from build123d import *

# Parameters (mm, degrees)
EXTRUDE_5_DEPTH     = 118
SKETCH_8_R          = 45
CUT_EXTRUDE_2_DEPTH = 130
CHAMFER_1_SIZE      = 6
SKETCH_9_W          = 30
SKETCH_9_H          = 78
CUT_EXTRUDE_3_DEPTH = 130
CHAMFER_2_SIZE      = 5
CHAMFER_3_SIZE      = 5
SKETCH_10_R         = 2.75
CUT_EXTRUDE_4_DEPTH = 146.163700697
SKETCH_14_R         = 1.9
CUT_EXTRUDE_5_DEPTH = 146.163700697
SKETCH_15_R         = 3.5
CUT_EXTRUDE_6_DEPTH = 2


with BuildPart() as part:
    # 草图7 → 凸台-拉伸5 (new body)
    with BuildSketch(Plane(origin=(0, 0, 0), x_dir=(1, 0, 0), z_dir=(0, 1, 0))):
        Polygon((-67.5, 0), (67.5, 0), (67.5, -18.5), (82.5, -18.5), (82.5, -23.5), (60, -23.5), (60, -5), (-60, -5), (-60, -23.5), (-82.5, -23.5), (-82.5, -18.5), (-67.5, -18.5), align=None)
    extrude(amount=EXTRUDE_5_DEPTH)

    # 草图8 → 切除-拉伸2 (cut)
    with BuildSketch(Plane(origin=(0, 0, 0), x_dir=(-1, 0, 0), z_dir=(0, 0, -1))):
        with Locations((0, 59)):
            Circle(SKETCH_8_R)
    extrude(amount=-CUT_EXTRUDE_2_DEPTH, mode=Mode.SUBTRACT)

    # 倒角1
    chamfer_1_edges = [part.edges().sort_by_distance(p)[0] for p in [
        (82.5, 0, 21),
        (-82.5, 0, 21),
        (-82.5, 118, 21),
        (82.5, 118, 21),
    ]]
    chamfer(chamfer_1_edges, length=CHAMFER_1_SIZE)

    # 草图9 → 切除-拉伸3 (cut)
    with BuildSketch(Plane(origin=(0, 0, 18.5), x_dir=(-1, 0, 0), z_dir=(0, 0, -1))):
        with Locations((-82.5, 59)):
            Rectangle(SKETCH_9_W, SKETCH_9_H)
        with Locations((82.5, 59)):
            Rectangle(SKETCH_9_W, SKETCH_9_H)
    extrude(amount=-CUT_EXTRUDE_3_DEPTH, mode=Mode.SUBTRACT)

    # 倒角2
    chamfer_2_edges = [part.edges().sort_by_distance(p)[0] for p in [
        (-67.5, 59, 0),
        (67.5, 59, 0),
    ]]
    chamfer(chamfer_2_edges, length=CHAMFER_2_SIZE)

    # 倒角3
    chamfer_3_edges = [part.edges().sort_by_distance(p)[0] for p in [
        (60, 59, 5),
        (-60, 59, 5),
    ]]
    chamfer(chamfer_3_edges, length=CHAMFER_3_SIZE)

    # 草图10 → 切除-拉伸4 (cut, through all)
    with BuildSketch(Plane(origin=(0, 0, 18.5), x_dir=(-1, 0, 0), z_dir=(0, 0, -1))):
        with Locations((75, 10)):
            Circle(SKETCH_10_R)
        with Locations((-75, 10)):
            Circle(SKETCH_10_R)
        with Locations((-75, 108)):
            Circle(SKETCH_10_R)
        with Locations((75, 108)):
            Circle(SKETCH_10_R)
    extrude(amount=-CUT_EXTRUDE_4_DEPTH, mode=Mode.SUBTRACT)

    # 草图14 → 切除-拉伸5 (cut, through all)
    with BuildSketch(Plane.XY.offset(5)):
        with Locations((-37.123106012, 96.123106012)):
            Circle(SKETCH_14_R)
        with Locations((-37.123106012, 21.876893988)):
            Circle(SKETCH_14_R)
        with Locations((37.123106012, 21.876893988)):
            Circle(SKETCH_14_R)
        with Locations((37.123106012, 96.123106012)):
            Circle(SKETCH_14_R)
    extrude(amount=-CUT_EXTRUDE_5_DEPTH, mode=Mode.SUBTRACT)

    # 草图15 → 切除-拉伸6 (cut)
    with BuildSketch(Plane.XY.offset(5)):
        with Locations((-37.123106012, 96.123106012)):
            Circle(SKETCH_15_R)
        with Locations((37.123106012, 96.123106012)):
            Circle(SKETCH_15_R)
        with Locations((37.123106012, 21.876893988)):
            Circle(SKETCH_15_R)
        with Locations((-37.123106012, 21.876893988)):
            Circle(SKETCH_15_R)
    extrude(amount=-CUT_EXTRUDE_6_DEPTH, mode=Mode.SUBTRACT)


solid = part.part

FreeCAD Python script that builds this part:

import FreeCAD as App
import Part
import Sketcher
from FreeCAD import Vector
Q = App.Units.Quantity


def edges_at(feature, points):
    """Names of the edges that pass closest to the given points."""
    edges = feature.Shape.Edges
    near = lambda p: min(range(len(edges)), key=lambda i: edges[i].distToShape(Part.Vertex(*p))[0])
    return sorted({f"Edge{near(p) + 1}" for p in points})

doc = App.newDocument("Part")
body = doc.addObject("PartDesign::Body", "Body")

sketch1 = body.newObject("Sketcher::SketchObject", "Sketch")
sketch1.AttachmentSupport = (doc.getObject("XZ_Plane"), [""])
sketch1.MapMode = "FlatFace"
sketch1.addGeometry(Part.LineSegment(Vector(68, 0, 0), Vector(-68, 0, 0)), False)
sketch1.addGeometry(Part.LineSegment(Vector(-68, 0, 0), Vector(-68, 18, 0)), False)
sketch1.addGeometry(Part.LineSegment(Vector(-68, 18, 0), Vector(-82, 18, 0)), False)
sketch1.addGeometry(Part.LineSegment(Vector(-82, 18, 0), Vector(-82, 24, 0)), False)
sketch1.addGeometry(Part.LineSegment(Vector(-82, 24, 0), Vector(-60, 24, 0)), False)
sketch1.addGeometry(Part.LineSegment(Vector(-60, 24, 0), Vector(-60, 5, 0)), False)
sketch1.addGeometry(Part.LineSegment(Vector(-60, 5, 0), Vector(60, 5, 0)), False)
sketch1.addGeometry(Part.LineSegment(Vector(60, 5, 0), Vector(60, 24, 0)), False)
sketch1.addGeometry(Part.LineSegment(Vector(60, 24, 0), Vector(82, 24, 0)), False)
sketch1.addGeometry(Part.LineSegment(Vector(82, 24, 0), Vector(82, 18, 0)), False)
sketch1.addGeometry(Part.LineSegment(Vector(82, 18, 0), Vector(68, 18, 0)), False)
sketch1.addGeometry(Part.LineSegment(Vector(68, 18, 0), Vector(68, 0, 0)), False)
sketch1.addConstraint(Sketcher.Constraint("Coincident", 0, 2, 1, 1))
sketch1.addConstraint(Sketcher.Constraint("Coincident", 1, 2, 2, 1))
sketch1.addConstraint(Sketcher.Constraint("Coincident", 2, 2, 3, 1))
sketch1.addConstraint(Sketcher.Constraint("Coincident", 3, 2, 4, 1))
sketch1.addConstraint(Sketcher.Constraint("Coincident", 4, 2, 5, 1))
sketch1.addConstraint(Sketcher.Constraint("Coincident", 5, 2, 6, 1))
sketch1.addConstraint(Sketcher.Constraint("Coincident", 6, 2, 7, 1))
sketch1.addConstraint(Sketcher.Constraint("Coincident", 7, 2, 8, 1))
sketch1.addConstraint(Sketcher.Constraint("Coincident", 8, 2, 9, 1))
sketch1.addConstraint(Sketcher.Constraint("Coincident", 9, 2, 10, 1))
sketch1.addConstraint(Sketcher.Constraint("Coincident", 10, 2, 11, 1))
sketch1.addConstraint(Sketcher.Constraint("Coincident", 11, 2, 0, 1))
sketch1.addConstraint(Sketcher.Constraint("Horizontal", 0))
sketch1.addConstraint(Sketcher.Constraint("Vertical", 1))
sketch1.addConstraint(Sketcher.Constraint("Horizontal", 2))
sketch1.addConstraint(Sketcher.Constraint("Vertical", 3))
sketch1.addConstraint(Sketcher.Constraint("Horizontal", 4))
sketch1.addConstraint(Sketcher.Constraint("Vertical", 5))
sketch1.addConstraint(Sketcher.Constraint("Horizontal", 6))
sketch1.addConstraint(Sketcher.Constraint("Vertical", 7))
sketch1.addConstraint(Sketcher.Constraint("Horizontal", 8))
sketch1.addConstraint(Sketcher.Constraint("Vertical", 9))
sketch1.addConstraint(Sketcher.Constraint("Horizontal", 10))
sketch1.addConstraint(Sketcher.Constraint("Vertical", 11))
sketch1.addConstraint(Sketcher.Constraint("Symmetric", 0, 2, 11, 2, -1, 1))
sketch1.addConstraint(Sketcher.Constraint("Symmetric", 4, 2, 7, 2, -2))
sketch1.addConstraint(Sketcher.Constraint("Symmetric", 2, 2, 9, 2, -2))
sketch1.addConstraint(Sketcher.Constraint("Equal", 1, 5))
sketch1.addConstraint(Sketcher.Constraint("DistanceX", 0, 2, 0, 1, Q("135 mm")))
sketch1.addConstraint(Sketcher.Constraint("DistanceX", 2, 2, 2, 1, Q("15 mm")))
sketch1.addConstraint(Sketcher.Constraint("DistanceX", 6, 1, 6, 2, Q("120 mm")))
sketch1.addConstraint(Sketcher.Constraint("DistanceY", 3, 1, 3, 2, Q("5 mm")))
sketch1.addConstraint(Sketcher.Constraint("DistanceY", 1, 1, 1, 2, Q("18.5 mm")))
pad1 = body.newObject("PartDesign::Pad", "Pad")
pad1.Profile = sketch1
pad1.Length = 118
pad1.Reversed = True

sketch2 = body.newObject("Sketcher::SketchObject", "Sketch001")
sketch2.AttachmentSupport = (doc.getObject("XY_Plane"), [""])
sketch2.MapMode = "FlatFace"
sketch2.addGeometry(Part.Circle(Vector(0, 59, 0), Vector(0, 0, 1), 45), False)
sketch2.addConstraint(Sketcher.Constraint("PointOnObject", 0, 3, -2))
sketch2.addConstraint(Sketcher.Constraint("Diameter", 0, Q("90 mm")))
sketch2.addConstraint(Sketcher.Constraint("DistanceY", -1, 1, 0, 3, Q("59 mm")))
pocket1 = body.newObject("PartDesign::Pocket", "Pocket")
pocket1.Profile = sketch2
pocket1.Length = 130
pocket1.Reversed = True
doc.recompute()

chamfer = body.newObject("PartDesign::Chamfer", "Chamfer")
chamfer.Base = (pocket1, edges_at(pocket1, [
    (82.5, 0, 21),
    (-82.5, 0, 21),
    (-82.5, 118, 21),
    (82.5, 118, 21),
]))
chamfer.Size = 6

sketch3 = body.newObject("Sketcher::SketchObject", "Sketch002")
sketch3.AttachmentSupport = (doc.getObject("XY_Plane"), [""])
sketch3.MapMode = "FlatFace"
sketch3.AttachmentOffset = App.Placement(Vector(0, 0, 18.5), App.Rotation())
sketch3.addGeometry(Part.LineSegment(Vector(98, 98, 0), Vector(98, 20, 0)), False)
sketch3.addGeometry(Part.LineSegment(Vector(98, 20, 0), Vector(68, 20, 0)), False)
sketch3.addGeometry(Part.LineSegment(Vector(68, 20, 0), Vector(68, 98, 0)), False)
sketch3.addGeometry(Part.LineSegment(Vector(68, 98, 0), Vector(98, 98, 0)), False)
sketch3.addGeometry(Part.LineSegment(Vector(-68, 98, 0), Vector(-68, 20, 0)), False)
sketch3.addGeometry(Part.LineSegment(Vector(-68, 20, 0), Vector(-98, 20, 0)), False)
sketch3.addGeometry(Part.LineSegment(Vector(-98, 20, 0), Vector(-98, 98, 0)), False)
sketch3.addGeometry(Part.LineSegment(Vector(-98, 98, 0), Vector(-68, 98, 0)), False)
sketch3.addConstraint(Sketcher.Constraint("Coincident", 0, 2, 1, 1))
sketch3.addConstraint(Sketcher.Constraint("Coincident", 1, 2, 2, 1))
sketch3.addConstraint(Sketcher.Constraint("Coincident", 2, 2, 3, 1))
sketch3.addConstraint(Sketcher.Constraint("Coincident", 3, 2, 0, 1))
sketch3.addConstraint(Sketcher.Constraint("Coincident", 4, 2, 5, 1))
sketch3.addConstraint(Sketcher.Constraint("Coincident", 5, 2, 6, 1))
sketch3.addConstraint(Sketcher.Constraint("Coincident", 6, 2, 7, 1))
sketch3.addConstraint(Sketcher.Constraint("Coincident", 7, 2, 4, 1))
sketch3.addConstraint(Sketcher.Constraint("Vertical", 0))
sketch3.addConstraint(Sketcher.Constraint("Horizontal", 1))
sketch3.addConstraint(Sketcher.Constraint("Vertical", 2))
sketch3.addConstraint(Sketcher.Constraint("Horizontal", 3))
sketch3.addConstraint(Sketcher.Constraint("Vertical", 4))
sketch3.addConstraint(Sketcher.Constraint("Horizontal", 5))
sketch3.addConstraint(Sketcher.Constraint("Vertical", 6))
sketch3.addConstraint(Sketcher.Constraint("Horizontal", 7))
sketch3.addConstraint(Sketcher.Constraint("Symmetric", 1, 2, 4, 2, -2))
sketch3.addConstraint(Sketcher.Constraint("Symmetric", 3, 2, 6, 2, -2))
sketch3.addConstraint(Sketcher.Constraint("DistanceX", 1, 2, 1, 1, Q("30 mm")))
sketch3.addConstraint(Sketcher.Constraint("DistanceY", 0, 2, 0, 1, Q("78 mm")))
sketch3.addConstraint(Sketcher.Constraint("DistanceY", -1, 1, 0, 2, Q("20 mm")))
sketch3.addConstraint(Sketcher.Constraint("DistanceX", 4, 2, 1, 2, Q("135 mm")))
pocket2 = body.newObject("PartDesign::Pocket", "Pocket001")
pocket2.Profile = sketch3
pocket2.Length = 130
pocket2.Reversed = True
doc.recompute()

chamfer2 = body.newObject("PartDesign::Chamfer", "Chamfer001")
chamfer2.Base = (pocket2, edges_at(pocket2, [(-67.5, 59, 0), (67.5, 59, 0)]))
chamfer2.Size = 5
doc.recompute()

chamfer3 = body.newObject("PartDesign::Chamfer", "Chamfer002")
chamfer3.Base = (chamfer2, edges_at(chamfer2, [(60, 59, 5), (-60, 59, 5)]))
chamfer3.Size = 5

sketch4 = body.newObject("Sketcher::SketchObject", "Sketch003")
sketch4.AttachmentSupport = (doc.getObject("XY_Plane"), [""])
sketch4.MapMode = "FlatFace"
sketch4.AttachmentOffset = App.Placement(Vector(0, 0, 18.5), App.Rotation())
sketch4.addGeometry(Part.Circle(Vector(-75, 10, 0), Vector(0, 0, 1), 2.8), False)
sketch4.addGeometry(Part.Circle(Vector(75, 10, 0), Vector(0, 0, 1), 2.8), False)
sketch4.addGeometry(Part.Circle(Vector(75, 108, 0), Vector(0, 0, 1), 2.8), False)
sketch4.addGeometry(Part.Circle(Vector(-75, 108, 0), Vector(0, 0, 1), 2.8), False)
sketch4.addConstraint(Sketcher.Constraint("Equal", 0, 1))
sketch4.addConstraint(Sketcher.Constraint("Equal", 1, 2))
sketch4.addConstraint(Sketcher.Constraint("Equal", 2, 3))
sketch4.addConstraint(Sketcher.Constraint("Symmetric", 0, 3, 1, 3, -2))
sketch4.addConstraint(Sketcher.Constraint("Symmetric", 2, 3, 3, 3, -2))
sketch4.addConstraint(Sketcher.Constraint("Vertical", 1, 3, 2, 3))
sketch4.addConstraint(Sketcher.Constraint("Diameter", 0, Q("5.5 mm")))
sketch4.addConstraint(Sketcher.Constraint("DistanceX", 0, 3, -1, 1, Q("75 mm")))
sketch4.addConstraint(Sketcher.Constraint("DistanceY", -1, 1, 0, 3, Q("10 mm")))
sketch4.addConstraint(Sketcher.Constraint("DistanceY", -1, 1, 2, 3, Q("108 mm")))
pocket3 = body.newObject("PartDesign::Pocket", "Pocket002")
pocket3.Profile = sketch4
pocket3.Type = "ThroughAll"
pocket3.Reversed = True

sketch5 = body.newObject("Sketcher::SketchObject", "Sketch004")
sketch5.AttachmentSupport = (doc.getObject("XY_Plane"), [""])
sketch5.MapMode = "FlatFace"
sketch5.AttachmentOffset = App.Placement(Vector(0, 0, 5), App.Rotation())
sketch5.addGeometry(Part.Circle(Vector(-37.1, 96.1, 0), Vector(0, 0, 1), 1.9), False)
sketch5.addGeometry(Part.Circle(Vector(-37.1, 21.9, 0), Vector(0, 0, 1), 1.9), False)
sketch5.addGeometry(Part.Circle(Vector(37.1, 21.9, 0), Vector(0, 0, 1), 1.9), False)
sketch5.addGeometry(Part.Circle(Vector(37.1, 96.1, 0), Vector(0, 0, 1), 1.9), False)
sketch5.addConstraint(Sketcher.Constraint("Equal", 0, 1))
sketch5.addConstraint(Sketcher.Constraint("Equal", 1, 2))
sketch5.addConstraint(Sketcher.Constraint("Equal", 2, 3))
sketch5.addConstraint(Sketcher.Constraint("Symmetric", 1, 3, 2, 3, -2))
sketch5.addConstraint(Sketcher.Constraint("Symmetric", 0, 3, 3, 3, -2))
sketch5.addConstraint(Sketcher.Constraint("Vertical", 0, 3, 1, 3))
sketch5.addConstraint(Sketcher.Constraint("Diameter", 0, Q("3.8 mm")))
sketch5.addConstraint(Sketcher.Constraint("DistanceX", 0, 3, -1, 1, Q("37.123106 mm")))
sketch5.addConstraint(Sketcher.Constraint("DistanceY", -1, 1, 0, 3, Q("96.123106 mm")))
sketch5.addConstraint(Sketcher.Constraint("DistanceY", -1, 1, 1, 3, Q("21.876894 mm")))
pocket4 = body.newObject("PartDesign::Pocket", "Pocket003")
pocket4.Profile = sketch5
pocket4.Type = "ThroughAll"

sketch6 = body.newObject("Sketcher::SketchObject", "Sketch005")
sketch6.AttachmentSupport = (doc.getObject("XY_Plane"), [""])
sketch6.MapMode = "FlatFace"
sketch6.AttachmentOffset = App.Placement(Vector(0, 0, 5), App.Rotation())
sketch6.addGeometry(Part.Circle(Vector(-37.1, 96.1, 0), Vector(0, 0, 1), 3.5), False)
sketch6.addGeometry(Part.Circle(Vector(37.1, 96.1, 0), Vector(0, 0, 1), 3.5), False)
sketch6.addGeometry(Part.Circle(Vector(37.1, 21.9, 0), Vector(0, 0, 1), 3.5), False)
sketch6.addGeometry(Part.Circle(Vector(-37.1, 21.9, 0), Vector(0, 0, 1), 3.5), False)
sketch6.addConstraint(Sketcher.Constraint("Equal", 0, 1))
sketch6.addConstraint(Sketcher.Constraint("Equal", 1, 2))
sketch6.addConstraint(Sketcher.Constraint("Equal", 2, 3))
sketch6.addConstraint(Sketcher.Constraint("Symmetric", 0, 3, 1, 3, -2))
sketch6.addConstraint(Sketcher.Constraint("Symmetric", 2, 3, 3, 3, -2))
sketch6.addConstraint(Sketcher.Constraint("Vertical", 1, 3, 2, 3))
sketch6.addConstraint(Sketcher.Constraint("Diameter", 0, Q("7 mm")))
sketch6.addConstraint(Sketcher.Constraint("DistanceX", 0, 3, -1, 1, Q("37.123106 mm")))
sketch6.addConstraint(Sketcher.Constraint("DistanceY", -1, 1, 0, 3, Q("96.123106 mm")))
sketch6.addConstraint(Sketcher.Constraint("DistanceY", -1, 1, 2, 3, Q("21.876894 mm")))
pocket5 = body.newObject("PartDesign::Pocket", "Pocket004")
pocket5.Profile = sketch6
pocket5.Length = 2

doc.recompute()
